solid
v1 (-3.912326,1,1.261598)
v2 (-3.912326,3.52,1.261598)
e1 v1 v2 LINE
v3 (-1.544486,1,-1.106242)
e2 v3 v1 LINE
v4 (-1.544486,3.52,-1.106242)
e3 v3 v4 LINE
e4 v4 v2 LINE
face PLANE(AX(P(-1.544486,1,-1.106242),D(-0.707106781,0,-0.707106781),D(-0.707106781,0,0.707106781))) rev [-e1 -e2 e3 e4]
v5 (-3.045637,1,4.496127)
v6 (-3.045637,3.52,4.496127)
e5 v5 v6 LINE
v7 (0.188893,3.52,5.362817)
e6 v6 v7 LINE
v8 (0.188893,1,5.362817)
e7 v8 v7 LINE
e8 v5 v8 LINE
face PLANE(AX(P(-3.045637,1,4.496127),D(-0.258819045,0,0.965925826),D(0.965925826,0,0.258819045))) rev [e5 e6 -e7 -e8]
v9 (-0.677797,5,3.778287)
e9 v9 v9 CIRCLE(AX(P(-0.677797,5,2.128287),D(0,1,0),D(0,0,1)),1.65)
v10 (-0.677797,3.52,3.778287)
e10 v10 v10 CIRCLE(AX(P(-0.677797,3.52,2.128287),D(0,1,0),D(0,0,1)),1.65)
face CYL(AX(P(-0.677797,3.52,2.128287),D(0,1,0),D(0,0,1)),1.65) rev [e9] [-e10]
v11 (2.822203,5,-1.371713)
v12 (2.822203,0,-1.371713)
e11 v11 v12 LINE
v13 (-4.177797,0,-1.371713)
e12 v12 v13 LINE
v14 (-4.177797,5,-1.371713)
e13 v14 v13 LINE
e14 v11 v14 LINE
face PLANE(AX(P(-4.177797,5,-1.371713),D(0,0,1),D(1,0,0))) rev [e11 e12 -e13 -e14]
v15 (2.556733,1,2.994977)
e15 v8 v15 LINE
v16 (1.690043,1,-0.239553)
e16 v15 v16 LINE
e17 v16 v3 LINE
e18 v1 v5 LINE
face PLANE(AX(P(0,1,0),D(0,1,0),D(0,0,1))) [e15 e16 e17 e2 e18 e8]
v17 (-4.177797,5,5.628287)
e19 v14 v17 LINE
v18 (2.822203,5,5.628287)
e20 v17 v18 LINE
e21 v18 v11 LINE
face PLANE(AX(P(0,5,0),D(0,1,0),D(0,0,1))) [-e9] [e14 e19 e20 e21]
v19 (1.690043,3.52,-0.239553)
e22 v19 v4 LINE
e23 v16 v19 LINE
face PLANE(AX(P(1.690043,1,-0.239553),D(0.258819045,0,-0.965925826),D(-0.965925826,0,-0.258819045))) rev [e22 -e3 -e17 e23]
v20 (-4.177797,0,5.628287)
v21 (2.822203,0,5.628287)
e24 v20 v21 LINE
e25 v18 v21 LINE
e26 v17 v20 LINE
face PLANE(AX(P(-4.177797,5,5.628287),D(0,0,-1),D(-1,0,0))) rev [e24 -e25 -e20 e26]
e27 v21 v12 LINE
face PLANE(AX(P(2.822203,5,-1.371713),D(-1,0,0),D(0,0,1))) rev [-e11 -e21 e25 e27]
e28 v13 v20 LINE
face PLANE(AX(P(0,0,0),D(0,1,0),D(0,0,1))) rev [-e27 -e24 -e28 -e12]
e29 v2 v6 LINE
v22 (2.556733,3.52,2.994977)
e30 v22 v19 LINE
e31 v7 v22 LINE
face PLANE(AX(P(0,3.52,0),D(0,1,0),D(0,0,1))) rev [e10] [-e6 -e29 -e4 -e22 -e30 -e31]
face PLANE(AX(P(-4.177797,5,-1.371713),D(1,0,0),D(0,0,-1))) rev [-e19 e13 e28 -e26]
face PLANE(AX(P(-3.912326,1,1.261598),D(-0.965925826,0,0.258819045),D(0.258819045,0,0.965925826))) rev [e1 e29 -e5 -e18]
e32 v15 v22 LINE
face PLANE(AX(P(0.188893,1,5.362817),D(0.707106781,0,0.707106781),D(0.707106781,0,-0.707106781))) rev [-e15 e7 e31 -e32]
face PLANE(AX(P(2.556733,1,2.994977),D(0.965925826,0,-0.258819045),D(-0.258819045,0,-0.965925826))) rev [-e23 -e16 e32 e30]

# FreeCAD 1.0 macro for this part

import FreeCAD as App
import Part
import Sketcher
Q = App.Units.Quantity


def add_polygon(sketch, points):
    """Adds a closed chain of lines whose ends are joined by coincident constraints."""
    first, n = sketch.GeometryCount, len(points)
    for a, b in zip(points, points[1:] + points[:1]):
        sketch.addGeometry(Part.LineSegment(App.Vector(*a, 0), App.Vector(*b, 0)), False)
    for i in range(n):
        sketch.addConstraint(Sketcher.Constraint("Coincident", first + i, 2, first + (i + 1) % n, 1))

doc = App.newDocument("Part")
body = doc.addObject("PartDesign::Body", "Body")

sketch1 = body.newObject("Sketcher::SketchObject", "Sketch")
sketch1.AttachmentSupport = (doc.getObject("XZ_Plane"), [""])
sketch1.MapMode = "FlatFace"
add_polygon(sketch1, [(-4, -1), (-4, 6), (3, 6), (3, -1)])
sketch1.addConstraint(Sketcher.Constraint("Vertical", 0))
sketch1.addConstraint(Sketcher.Constraint("Horizontal", 1))
sketch1.addConstraint(Sketcher.Constraint("Vertical", 2))
sketch1.addConstraint(Sketcher.Constraint("Horizontal", 3))
sketch1.addConstraint(Sketcher.Constraint("Equal", 3, 0))
sketch1.addConstraint(Sketcher.Constraint("DistanceX", 1, 1, 1, 2, 7.0))
sketch1.addConstraint(Sketcher.Constraint("DistanceX", 0, 2, -1, 1, 4.177797))
sketch1.addConstraint(Sketcher.Constraint("DistanceY", -1, 1, 0, 2, 5.628287))
pad1 = body.newObject("PartDesign::Pad", "Pad")
pad1.Profile = sketch1
pad1.Length = 5
pad1.Reversed = True

sketch2 = body.newObject("Sketcher::SketchObject", "Sketch001")
sketch2.AttachmentSupport = (doc.getObject("XZ_Plane"), [""])
sketch2.MapMode = "FlatFace"
sketch2.AttachmentOffset = App.Placement(App.Vector(0, 0, -5), App.Rotation())
add_polygon(sketch2, [(-1.5, -1.1), (-3.9, 1.3), (-3, 4.5), (0.2, 5.4), (2.6, 3), (1.7, -0.2)])
sketch2.addGeometry(Part.Circle(App.Vector(-0.7, 2.1, 0), App.Vector(0, 0, 1), 1.6), False)
sketch2.addConstraint(Sketcher.Constraint("Parallel", 0, 3))
sketch2.addConstraint(Sketcher.Constraint("Parallel", 1, 4))
sketch2.addConstraint(Sketcher.Constraint("Parallel", 2, 5))
sketch2.addConstraint(Sketcher.Constraint("Equal", 0, 1))
sketch2.addConstraint(Sketcher.Constraint("Equal", 1, 2))
sketch2.addConstraint(Sketcher.Constraint("Equal", 2, 3))
sketch2.addConstraint(Sketcher.Constraint("Diameter", 6, 3.3))
sketch2.addConstraint(Sketcher.Constraint("Angle", 0, Q("135 deg")))
sketch2.addConstraint(Sketcher.Constraint("Angle", 1, Q("75 deg")))
sketch2.addConstraint(Sketcher.Constraint("Angle", 2, Q("15 deg")))
sketch2.addConstraint(Sketcher.Constraint("Distance", 0, 3.348632))
sketch2.addConstraint(Sketcher.Constraint("DistanceX", 0, 2, 6, 3, 3.23453))
sketch2.addConstraint(Sketcher.Constraint("DistanceY", 0, 2, 6, 3, 0.86669))
sketch2.addConstraint(Sketcher.Constraint("DistanceX", 6, 3, -1, 1, 0.677797))
sketch2.addConstraint(Sketcher.Constraint("DistanceY", -1, 1, 6, 3, 2.128287))
pocket1 = body.newObject("PartDesign::Pocket", "Pocket")
pocket1.Profile = sketch2
pocket1.Length = 4
pocket1.Reversed = True

sketch3 = body.newObject("Sketcher::SketchObject", "Sketch002")
sketch3.AttachmentSupport = (doc.getObject("XZ_Plane"), [""])
sketch3.MapMode = "FlatFace"
sketch3.AttachmentOffset = App.Placement(App.Vector(0, 0, -5), App.Rotation())
sketch3.addGeometry(Part.Circle(App.Vector(-0.7, 2.1, 0), App.Vector(0, 0, 1), 1.6), False)
sketch3.addConstraint(Sketcher.Constraint("Diameter", 0, 3.3))
sketch3.addConstraint(Sketcher.Constraint("DistanceX", 0, 3, -1, 1, 0.677797))
sketch3.addConstraint(Sketcher.Constraint("DistanceY", -1, 1, 0, 3, 2.128287))
pocket2 = body.newObject("PartDesign::Pocket", "Pocket001")
pocket2.Profile = sketch3
pocket2.Length = 4
pocket2.Reversed = True

sketch4 = body.newObject("Sketcher::SketchObject", "Sketch003")
sketch4.AttachmentSupport = (doc.getObject("XZ_Plane"), [""])
sketch4.MapMode = "FlatFace"
sketch4.AttachmentOffset = App.Placement(App.Vector(0, 0, -5), App.Rotation())
add_polygon(sketch4, [(1.7, -0.2), (-1.5, -1.1), (-3.9, 1.3), (-3, 4.5), (0.2, 5.4), (2.6, 3)])
sketch4.addGeometry(Part.Circle(App.Vector(-0.7, 2.1, 0), App.Vector(0, 0, 1), 1.6), False)
sketch4.addConstraint(Sketcher.Constraint("Parallel", 0, 3))
sketch4.addConstraint(Sketcher.Constraint("Parallel", 1, 4))
sketch4.addConstraint(Sketcher.Constraint("Parallel", 2, 5))
sketch4.addConstraint(Sketcher.Constraint("Equal", 0, 1))
sketch4.addConstraint(Sketcher.Constraint("Equal", 1, 2))
sketch4.addConstraint(Sketcher.Constraint("Equal", 2, 3))
sketch4.addConstraint(Sketcher.Constraint("Diameter", 6, 3.3))
sketch4.addConstraint(Sketcher.Constraint("Angle", 0, Q("-165 deg")))
sketch4.addConstraint(Sketcher.Constraint("Angle", 1, Q("135 deg")))
sketch4.addConstraint(Sketcher.Constraint("Angle", 2, Q("75 deg")))
sketch4.addConstraint(Sketcher.Constraint("Distance", 0, 3.348632))
sketch4.addConstraint(Sketcher.Constraint("DistanceX", 0, 2, 6, 3, 0.86669))
sketch4.addConstraint(Sketcher.Constraint("DistanceY", 0, 2, 6, 3, 3.23453))
sketch4.addConstraint(Sketcher.Constraint("DistanceX", 6, 3, -1, 1, 0.677797))
sketch4.addConstraint(Sketcher.Constraint("DistanceY", -1, 1, 6, 3, 2.128287))
pad2 = body.newObject("PartDesign::Pad", "Pad001")
pad2.Profile = sketch4
pad2.Length = 1.48

doc.recompute()
